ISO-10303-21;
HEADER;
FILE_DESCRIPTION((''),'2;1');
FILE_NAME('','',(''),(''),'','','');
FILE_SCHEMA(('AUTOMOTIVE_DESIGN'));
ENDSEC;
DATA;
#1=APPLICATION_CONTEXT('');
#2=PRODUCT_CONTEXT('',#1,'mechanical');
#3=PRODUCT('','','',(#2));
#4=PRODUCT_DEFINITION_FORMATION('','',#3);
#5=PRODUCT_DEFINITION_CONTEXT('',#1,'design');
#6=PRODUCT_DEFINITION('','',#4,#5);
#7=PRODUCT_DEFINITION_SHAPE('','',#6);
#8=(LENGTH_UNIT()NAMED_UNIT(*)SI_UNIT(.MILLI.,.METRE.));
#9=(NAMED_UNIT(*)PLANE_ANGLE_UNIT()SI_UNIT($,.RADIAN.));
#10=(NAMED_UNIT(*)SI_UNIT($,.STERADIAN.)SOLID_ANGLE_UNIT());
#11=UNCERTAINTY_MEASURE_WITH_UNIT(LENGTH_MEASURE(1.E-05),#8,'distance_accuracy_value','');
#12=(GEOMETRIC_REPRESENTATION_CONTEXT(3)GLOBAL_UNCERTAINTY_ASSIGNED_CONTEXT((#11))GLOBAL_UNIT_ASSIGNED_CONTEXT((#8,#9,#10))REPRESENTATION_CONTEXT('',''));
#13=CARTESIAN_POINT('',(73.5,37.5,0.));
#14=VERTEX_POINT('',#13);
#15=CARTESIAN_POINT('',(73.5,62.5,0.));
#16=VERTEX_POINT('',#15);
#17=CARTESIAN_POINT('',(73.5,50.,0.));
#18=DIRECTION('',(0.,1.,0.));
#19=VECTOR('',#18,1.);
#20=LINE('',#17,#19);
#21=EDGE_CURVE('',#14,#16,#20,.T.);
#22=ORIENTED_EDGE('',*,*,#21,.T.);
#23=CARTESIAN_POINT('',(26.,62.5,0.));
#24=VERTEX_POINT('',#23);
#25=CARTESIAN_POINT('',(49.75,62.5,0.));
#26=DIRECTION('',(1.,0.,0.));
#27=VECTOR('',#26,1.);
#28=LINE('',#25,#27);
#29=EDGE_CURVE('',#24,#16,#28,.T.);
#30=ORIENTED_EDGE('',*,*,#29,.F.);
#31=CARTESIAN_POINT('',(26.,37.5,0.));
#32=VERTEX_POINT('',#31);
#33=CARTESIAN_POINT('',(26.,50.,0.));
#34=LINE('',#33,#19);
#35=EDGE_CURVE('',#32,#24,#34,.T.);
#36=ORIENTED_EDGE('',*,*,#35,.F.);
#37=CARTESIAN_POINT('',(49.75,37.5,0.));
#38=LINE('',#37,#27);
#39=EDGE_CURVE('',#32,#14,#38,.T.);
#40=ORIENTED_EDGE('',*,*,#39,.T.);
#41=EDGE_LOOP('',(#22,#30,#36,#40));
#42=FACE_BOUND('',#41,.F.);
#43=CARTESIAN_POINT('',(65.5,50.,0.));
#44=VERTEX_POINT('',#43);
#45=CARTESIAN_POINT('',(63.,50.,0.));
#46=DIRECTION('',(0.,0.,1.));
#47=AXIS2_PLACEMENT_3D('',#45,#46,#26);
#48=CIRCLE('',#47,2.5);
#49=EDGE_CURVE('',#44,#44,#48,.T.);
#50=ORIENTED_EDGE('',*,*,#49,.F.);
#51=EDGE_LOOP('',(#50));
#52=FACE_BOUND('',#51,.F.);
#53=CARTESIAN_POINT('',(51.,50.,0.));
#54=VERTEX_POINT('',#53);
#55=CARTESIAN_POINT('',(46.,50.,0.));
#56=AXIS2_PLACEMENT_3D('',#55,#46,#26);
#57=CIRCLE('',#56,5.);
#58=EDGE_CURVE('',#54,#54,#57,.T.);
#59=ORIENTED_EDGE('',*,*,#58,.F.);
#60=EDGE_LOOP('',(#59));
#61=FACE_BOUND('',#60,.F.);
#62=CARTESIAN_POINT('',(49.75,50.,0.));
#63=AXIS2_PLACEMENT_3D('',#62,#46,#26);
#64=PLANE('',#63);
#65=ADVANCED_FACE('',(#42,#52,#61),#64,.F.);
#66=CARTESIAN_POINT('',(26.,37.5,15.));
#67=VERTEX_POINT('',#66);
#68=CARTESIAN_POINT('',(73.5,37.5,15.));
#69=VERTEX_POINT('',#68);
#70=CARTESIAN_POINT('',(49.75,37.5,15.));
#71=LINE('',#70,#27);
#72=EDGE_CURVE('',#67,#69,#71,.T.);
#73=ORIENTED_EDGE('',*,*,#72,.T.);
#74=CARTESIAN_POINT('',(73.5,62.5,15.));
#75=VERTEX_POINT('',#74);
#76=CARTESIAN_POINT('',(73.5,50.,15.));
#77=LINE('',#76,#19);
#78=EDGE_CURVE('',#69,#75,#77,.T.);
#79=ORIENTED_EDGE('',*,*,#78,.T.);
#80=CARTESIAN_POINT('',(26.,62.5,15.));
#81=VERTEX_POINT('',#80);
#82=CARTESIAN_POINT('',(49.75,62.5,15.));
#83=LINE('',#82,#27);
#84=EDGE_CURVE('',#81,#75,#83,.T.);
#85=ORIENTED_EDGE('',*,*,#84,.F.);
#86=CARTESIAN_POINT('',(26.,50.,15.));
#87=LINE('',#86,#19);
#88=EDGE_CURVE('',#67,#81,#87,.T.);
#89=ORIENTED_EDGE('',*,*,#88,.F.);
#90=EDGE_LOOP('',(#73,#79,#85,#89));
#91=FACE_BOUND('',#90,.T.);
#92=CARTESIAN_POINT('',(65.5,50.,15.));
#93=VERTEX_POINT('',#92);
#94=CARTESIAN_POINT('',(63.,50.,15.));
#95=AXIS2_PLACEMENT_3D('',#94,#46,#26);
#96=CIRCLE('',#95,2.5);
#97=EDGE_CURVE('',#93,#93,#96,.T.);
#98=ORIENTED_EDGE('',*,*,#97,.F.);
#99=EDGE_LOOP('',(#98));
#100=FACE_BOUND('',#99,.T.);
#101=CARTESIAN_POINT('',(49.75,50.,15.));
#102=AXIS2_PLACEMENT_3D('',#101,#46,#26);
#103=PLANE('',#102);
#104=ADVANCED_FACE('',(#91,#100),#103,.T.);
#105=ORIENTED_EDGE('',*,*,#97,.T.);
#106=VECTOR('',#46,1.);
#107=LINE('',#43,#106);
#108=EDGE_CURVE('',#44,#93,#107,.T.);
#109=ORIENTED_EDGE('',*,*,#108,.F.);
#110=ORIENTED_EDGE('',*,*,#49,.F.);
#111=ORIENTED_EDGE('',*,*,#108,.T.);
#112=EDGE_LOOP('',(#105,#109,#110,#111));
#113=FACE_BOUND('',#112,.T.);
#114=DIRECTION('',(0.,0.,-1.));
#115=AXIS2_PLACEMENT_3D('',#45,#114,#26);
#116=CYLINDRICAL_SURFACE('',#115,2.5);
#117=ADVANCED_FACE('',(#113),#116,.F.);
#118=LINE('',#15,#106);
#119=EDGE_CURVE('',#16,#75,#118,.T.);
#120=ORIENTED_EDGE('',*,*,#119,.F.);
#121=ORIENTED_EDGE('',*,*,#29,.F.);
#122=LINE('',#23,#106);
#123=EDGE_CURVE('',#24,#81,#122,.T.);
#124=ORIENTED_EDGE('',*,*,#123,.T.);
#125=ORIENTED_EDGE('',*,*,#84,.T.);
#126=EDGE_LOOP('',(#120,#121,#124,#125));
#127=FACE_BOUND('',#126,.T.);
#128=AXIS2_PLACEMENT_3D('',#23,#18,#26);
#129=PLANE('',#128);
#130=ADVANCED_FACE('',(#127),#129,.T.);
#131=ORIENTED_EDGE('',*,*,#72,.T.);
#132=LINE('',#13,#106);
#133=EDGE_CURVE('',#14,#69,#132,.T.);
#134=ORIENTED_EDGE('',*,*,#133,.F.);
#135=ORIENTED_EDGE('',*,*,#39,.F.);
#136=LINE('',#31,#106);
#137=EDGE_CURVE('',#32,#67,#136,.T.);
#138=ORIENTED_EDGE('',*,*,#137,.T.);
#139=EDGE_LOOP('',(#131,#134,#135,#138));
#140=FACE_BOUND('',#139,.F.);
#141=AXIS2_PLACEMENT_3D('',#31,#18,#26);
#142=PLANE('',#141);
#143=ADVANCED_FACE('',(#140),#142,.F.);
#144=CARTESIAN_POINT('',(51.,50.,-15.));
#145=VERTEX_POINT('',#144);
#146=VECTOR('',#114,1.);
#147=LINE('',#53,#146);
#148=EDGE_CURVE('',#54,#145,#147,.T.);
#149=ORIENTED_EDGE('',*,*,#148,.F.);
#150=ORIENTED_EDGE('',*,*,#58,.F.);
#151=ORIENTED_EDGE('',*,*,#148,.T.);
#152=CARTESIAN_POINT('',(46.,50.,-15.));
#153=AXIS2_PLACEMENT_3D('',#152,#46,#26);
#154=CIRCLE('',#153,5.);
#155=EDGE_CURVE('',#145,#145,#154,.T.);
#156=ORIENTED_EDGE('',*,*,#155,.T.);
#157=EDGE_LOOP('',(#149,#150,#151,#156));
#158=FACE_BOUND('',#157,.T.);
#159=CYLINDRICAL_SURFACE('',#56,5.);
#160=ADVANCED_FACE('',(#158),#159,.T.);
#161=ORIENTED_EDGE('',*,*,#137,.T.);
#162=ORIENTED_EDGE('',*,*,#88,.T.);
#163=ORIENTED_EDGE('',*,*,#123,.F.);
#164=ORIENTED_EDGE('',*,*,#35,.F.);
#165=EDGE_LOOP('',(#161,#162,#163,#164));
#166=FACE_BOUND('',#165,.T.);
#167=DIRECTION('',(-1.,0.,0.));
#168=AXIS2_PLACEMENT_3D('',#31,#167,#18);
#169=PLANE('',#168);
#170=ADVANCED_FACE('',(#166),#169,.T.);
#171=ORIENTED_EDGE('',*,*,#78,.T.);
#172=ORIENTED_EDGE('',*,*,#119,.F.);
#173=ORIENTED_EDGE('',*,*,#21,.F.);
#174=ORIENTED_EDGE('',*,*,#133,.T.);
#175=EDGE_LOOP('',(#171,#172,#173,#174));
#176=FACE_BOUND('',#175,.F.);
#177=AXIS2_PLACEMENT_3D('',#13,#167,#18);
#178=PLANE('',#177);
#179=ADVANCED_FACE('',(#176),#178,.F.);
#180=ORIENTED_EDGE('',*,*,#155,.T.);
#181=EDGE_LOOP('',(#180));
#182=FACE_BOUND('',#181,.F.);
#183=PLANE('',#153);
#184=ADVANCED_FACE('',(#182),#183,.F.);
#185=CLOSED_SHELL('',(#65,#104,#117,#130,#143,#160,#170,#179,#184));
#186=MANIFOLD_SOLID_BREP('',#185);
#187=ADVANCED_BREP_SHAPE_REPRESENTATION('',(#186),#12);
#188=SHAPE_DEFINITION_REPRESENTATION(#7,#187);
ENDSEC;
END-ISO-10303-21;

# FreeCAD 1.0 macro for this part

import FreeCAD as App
import Part
import Sketcher
Q = App.Units.Quantity


def add_polygon(sketch, points):
    """Adds a closed chain of lines whose ends are joined by coincident constraints."""
    first, n = sketch.GeometryCount, len(points)
    for a, b in zip(points, points[1:] + points[:1]):
        sketch.addGeometry(Part.LineSegment(App.Vector(*a, 0), App.Vector(*b, 0)), False)
    for i in range(n):
        sketch.addConstraint(Sketcher.Constraint("Coincident", first + i, 2, first + (i + 1) % n, 1))

doc = App.newDocument("Part")
body = doc.addObject("PartDesign::Body", "Body")

# Sketch on XY plane
sketch1 = body.newObject("Sketcher::SketchObject", "Sketch")
sketch1.AttachmentSupport = (doc.getObject("XY_Plane"), [""])
sketch1.MapMode = "FlatFace"
add_polygon(sketch1, [(26, 62.5), (26, 37.5), (73.5, 37.5), (73.5, 62.5)])  # lines 0-3
sketch1.addGeometry(Part.Circle(App.Vector(63, 50, 0), App.Vector(0, 0, 1), 2.5), False)  # 4
sketch1.addConstraint([
    Sketcher.Constraint("Vertical", 0),
    Sketcher.Constraint("Horizontal", 1),
    Sketcher.Constraint("Vertical", 2),
    Sketcher.Constraint("Horizontal", 3),
    Sketcher.Constraint("Diameter", 4, Q("5 mm")),
    Sketcher.Constraint("DistanceY", 0, 2, 0, 1, Q("25 mm")),
    Sketcher.Constraint("DistanceX", 1, 1, 1, 2, Q("47.5 mm")),
    Sketcher.Constraint("DistanceX", -1, 1, 4, 3, Q("63 mm")),
    Sketcher.Constraint("DistanceY", -1, 1, 4, 3, Q("50 mm")),
    Sketcher.Constraint("DistanceX", -1, 1, 0, 2, Q("26 mm")),
    Sketcher.Constraint("DistanceY", -1, 1, 0, 2, Q("37.5 mm")),
])
pad1 = body.newObject("PartDesign::Pad", "Pad")
pad1.Profile = sketch1
pad1.Length = 15

# Sketch on XY plane
sketch2 = body.newObject("Sketcher::SketchObject", "Sketch001")
sketch2.AttachmentSupport = (doc.getObject("XY_Plane"), [""])
sketch2.MapMode = "FlatFace"
sketch2.addGeometry(Part.Circle(App.Vector(46, 50, 0), App.Vector(0, 0, 1), 5), False)
sketch2.addConstraint([
    Sketcher.Constraint("Diameter", 0, Q("10 mm")),
    Sketcher.Constraint("DistanceX", -1, 1, 0, 3, Q("46 mm")),
    Sketcher.Constraint("DistanceY", -1, 1, 0, 3, Q("50 mm")),
])
pad2 = body.newObject("PartDesign::Pad", "Pad001")
pad2.Profile = sketch2
pad2.Length = 15
pad2.Reversed = True

doc.recompute()
